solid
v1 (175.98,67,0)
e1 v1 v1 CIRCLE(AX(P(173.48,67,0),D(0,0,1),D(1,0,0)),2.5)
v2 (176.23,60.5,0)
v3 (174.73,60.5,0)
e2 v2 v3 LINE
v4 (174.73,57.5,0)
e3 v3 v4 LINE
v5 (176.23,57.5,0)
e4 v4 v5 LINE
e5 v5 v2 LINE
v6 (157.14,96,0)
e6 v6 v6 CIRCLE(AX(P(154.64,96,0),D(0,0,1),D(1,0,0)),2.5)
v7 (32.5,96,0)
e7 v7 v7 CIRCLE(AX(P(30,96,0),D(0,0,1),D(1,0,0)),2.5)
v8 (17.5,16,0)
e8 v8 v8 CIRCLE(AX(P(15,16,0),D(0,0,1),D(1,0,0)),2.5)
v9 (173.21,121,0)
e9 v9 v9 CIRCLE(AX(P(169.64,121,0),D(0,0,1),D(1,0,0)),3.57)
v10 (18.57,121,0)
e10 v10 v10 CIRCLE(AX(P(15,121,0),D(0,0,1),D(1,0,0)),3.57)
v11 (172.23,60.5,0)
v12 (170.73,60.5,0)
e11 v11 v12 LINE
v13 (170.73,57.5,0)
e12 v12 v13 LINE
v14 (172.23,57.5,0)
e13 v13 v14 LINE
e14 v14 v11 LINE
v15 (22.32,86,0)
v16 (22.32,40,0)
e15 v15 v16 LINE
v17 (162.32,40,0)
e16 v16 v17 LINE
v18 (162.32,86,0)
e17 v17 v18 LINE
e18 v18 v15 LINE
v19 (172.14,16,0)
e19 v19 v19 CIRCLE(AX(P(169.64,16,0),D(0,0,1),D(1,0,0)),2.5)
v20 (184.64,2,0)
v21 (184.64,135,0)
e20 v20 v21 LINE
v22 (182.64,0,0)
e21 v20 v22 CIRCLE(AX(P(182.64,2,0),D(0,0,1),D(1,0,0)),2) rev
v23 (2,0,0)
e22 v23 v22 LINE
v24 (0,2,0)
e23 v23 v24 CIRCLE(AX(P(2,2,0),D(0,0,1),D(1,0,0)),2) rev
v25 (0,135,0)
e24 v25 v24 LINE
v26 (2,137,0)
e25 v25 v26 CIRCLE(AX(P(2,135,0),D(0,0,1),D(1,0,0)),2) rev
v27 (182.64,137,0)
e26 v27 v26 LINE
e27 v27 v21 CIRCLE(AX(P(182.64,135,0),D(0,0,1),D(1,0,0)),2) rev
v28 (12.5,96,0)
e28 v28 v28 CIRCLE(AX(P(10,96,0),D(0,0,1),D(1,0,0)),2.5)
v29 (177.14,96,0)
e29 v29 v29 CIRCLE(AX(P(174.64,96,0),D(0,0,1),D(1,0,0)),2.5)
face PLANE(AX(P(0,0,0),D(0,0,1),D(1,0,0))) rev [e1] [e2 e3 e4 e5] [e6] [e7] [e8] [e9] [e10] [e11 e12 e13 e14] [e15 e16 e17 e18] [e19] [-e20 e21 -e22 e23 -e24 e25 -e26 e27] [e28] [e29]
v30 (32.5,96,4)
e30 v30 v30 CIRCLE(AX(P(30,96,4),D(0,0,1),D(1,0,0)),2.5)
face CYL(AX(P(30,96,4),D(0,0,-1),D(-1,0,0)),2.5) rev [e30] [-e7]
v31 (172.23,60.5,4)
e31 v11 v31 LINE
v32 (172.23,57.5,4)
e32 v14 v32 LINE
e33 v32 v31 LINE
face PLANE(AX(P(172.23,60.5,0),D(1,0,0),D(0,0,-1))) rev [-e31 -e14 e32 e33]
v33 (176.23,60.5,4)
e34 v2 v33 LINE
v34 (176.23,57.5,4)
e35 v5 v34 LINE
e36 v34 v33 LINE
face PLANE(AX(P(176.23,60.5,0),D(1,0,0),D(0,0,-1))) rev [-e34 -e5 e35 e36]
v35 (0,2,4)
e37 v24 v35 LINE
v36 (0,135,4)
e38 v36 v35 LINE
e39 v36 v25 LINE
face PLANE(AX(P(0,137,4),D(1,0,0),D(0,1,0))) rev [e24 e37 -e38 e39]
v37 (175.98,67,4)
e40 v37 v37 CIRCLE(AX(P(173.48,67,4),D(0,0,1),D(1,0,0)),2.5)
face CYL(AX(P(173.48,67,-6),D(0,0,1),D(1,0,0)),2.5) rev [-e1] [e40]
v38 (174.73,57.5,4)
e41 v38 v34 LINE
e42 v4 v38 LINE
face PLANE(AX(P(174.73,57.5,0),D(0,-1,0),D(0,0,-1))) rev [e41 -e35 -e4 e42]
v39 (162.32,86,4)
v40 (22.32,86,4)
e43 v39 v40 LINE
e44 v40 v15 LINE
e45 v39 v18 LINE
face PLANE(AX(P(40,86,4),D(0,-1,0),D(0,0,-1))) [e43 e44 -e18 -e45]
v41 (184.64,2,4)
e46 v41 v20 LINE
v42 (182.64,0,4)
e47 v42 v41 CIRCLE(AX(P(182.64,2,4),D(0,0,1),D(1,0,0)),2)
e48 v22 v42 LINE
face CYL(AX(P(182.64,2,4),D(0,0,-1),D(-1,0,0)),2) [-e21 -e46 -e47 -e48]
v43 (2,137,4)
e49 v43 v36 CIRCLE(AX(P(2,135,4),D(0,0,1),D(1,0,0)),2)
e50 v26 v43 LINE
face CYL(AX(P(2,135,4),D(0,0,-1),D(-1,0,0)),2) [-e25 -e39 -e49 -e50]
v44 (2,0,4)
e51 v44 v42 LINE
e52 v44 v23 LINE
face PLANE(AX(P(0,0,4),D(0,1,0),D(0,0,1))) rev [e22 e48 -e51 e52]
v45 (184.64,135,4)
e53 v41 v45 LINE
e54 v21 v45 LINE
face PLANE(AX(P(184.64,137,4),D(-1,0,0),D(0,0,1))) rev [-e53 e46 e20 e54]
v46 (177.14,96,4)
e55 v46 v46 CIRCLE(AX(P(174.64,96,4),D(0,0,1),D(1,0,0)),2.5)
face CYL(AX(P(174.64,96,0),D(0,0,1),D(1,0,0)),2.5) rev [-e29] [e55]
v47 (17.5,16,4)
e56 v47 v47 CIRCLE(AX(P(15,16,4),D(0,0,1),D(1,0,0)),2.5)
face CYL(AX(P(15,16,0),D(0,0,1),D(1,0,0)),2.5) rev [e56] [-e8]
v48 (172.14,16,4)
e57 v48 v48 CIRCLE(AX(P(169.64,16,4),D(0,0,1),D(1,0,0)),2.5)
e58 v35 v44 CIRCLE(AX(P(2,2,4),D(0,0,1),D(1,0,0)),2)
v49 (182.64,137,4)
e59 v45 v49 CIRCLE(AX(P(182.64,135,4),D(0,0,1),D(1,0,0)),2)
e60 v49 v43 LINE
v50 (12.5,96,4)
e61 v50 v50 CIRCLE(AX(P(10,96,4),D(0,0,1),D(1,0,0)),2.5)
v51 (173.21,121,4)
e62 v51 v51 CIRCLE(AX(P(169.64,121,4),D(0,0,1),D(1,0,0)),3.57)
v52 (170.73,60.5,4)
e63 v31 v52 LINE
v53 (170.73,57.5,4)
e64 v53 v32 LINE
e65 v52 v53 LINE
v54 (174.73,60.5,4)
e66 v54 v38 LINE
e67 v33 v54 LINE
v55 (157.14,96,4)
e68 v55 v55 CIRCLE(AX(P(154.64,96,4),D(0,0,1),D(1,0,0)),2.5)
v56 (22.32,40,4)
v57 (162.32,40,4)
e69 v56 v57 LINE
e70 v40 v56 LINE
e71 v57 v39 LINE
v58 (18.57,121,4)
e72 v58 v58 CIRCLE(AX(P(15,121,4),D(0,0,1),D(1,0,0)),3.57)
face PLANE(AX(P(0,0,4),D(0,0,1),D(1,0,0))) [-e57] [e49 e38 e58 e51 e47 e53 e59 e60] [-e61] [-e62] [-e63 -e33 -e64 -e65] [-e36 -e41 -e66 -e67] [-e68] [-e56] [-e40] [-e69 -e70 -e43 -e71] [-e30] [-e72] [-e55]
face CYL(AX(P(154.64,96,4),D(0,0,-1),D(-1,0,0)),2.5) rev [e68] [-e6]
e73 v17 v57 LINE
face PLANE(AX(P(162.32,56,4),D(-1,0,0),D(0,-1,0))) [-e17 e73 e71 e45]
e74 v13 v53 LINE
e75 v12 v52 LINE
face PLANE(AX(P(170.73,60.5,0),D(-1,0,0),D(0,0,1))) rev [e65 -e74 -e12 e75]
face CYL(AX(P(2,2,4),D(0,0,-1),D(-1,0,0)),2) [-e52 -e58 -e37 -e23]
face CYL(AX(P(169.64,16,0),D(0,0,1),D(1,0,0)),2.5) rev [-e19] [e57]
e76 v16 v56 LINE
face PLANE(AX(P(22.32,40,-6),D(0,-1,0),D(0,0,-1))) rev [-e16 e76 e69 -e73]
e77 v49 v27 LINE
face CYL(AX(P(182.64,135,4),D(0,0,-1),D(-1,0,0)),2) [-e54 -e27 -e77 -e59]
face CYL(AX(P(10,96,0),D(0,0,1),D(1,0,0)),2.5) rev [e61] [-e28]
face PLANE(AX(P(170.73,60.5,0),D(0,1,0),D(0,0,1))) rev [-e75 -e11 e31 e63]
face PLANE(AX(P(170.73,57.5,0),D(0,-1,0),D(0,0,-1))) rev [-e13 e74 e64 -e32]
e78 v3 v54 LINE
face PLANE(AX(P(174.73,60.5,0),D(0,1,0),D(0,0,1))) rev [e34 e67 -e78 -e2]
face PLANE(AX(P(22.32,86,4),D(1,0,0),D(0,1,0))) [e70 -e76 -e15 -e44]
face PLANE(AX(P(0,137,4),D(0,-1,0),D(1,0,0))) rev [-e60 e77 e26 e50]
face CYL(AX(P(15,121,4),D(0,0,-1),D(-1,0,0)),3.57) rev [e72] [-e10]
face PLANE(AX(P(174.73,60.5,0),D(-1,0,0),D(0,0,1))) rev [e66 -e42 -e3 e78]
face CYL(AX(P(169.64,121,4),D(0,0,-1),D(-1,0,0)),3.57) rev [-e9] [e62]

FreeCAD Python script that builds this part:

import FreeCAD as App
import Part
import Sketcher


def edges_at(feature, points):
    """Names of the edges that pass closest to the given points."""
    edges = feature.Shape.Edges
    near = lambda p: min(range(len(edges)), key=lambda i: edges[i].distToShape(Part.Vertex(*p))[0])
    return sorted({f"Edge{near(p) + 1}" for p in points})

doc = App.newDocument("Part")
params = doc.addObject("Spreadsheet::Sheet", "Params")
for row, (alias, value) in enumerate([
    ("sketch1_diameter", "5 mm"),
    ("sketch1_diameter2", "7.3 mm"),
    ("sketch1_diameter3", "7.14 mm"),
    ("sketch1_width", "140 mm"),
    ("sketch1_height", "137 mm"),
    ("pad1_length", "4 mm"),
    ("sketch2_height", "20 mm"),
    ("sketch2_width", "104.64 mm"),
    ("pad2_length", "4 mm"),
    ("sketch3_diameter", "7.3 mm"),
    ("sketch4_width", "140 mm"),
    ("sketch4_height", "16 mm"),
    ("pocket2_length", "10 mm"),
    ("fillet_radius", "2 mm"),
    ("sketch5_diameter", "5 mm"),
    ("sketch5_height", "15 mm"),
    ("sketch5_width", "184.64 mm"),
    ("sketch6_diameter", "5 mm"),
    ("sketch7_diameter", "5 mm"),
    ("pocket4_length", "10 mm"),
    ("sketch8_height", "3 mm"),
    ("sketch8_width", "1.5 mm"),
], start=1):
    params.set(f"A{row}", alias)
    params.set(f"B{row}", "=" + value)
    params.setAlias(f"B{row}", alias)

body = doc.addObject("PartDesign::Body", "Body")

# Sketch on XY plane
sketch1 = doc.addObject("Sketcher::SketchObject", "Sketch")
body.addObject(sketch1)
sketch1.AttachmentSupport = (doc.XY_Plane, [""])
sketch1.MapMode = "FlatFace"
sketch1.addGeometry([
    Part.LineSegment(App.Vector(0, 137, 0), App.Vector(0, 0, 0)),  # 0
    Part.LineSegment(App.Vector(0, 0, 0), App.Vector(184.6, 0, 0)),  # 1
    Part.LineSegment(App.Vector(184.6, 0, 0), App.Vector(184.6, 137, 0)),  # 2
    Part.LineSegment(App.Vector(184.6, 137, 0), App.Vector(0, 137, 0)),  # 3
    Part.Circle(App.Vector(15, 16, 0), App.Vector(0, 0, 1), 3.6),  # 4
    Part.Circle(App.Vector(169.6, 16, 0), App.Vector(0, 0, 1), 3.6),  # 5
    Part.Circle(App.Vector(30, 96, 0), App.Vector(0, 0, 1), 2.5),  # 6
    Part.Circle(App.Vector(15, 121, 0), App.Vector(0, 0, 1), 3.6),  # 7
    Part.LineSegment(App.Vector(40, 86, 0), App.Vector(40, 106, 0)),  # 8
    Part.LineSegment(App.Vector(40, 106, 0), App.Vector(144.6, 106, 0)),  # 9
    Part.LineSegment(App.Vector(144.6, 106, 0), App.Vector(144.6, 86, 0)),  # 10
    Part.LineSegment(App.Vector(144.6, 86, 0), App.Vector(162.3, 86, 0)),  # 11
    Part.LineSegment(App.Vector(162.3, 86, 0), App.Vector(162.3, 56, 0)),  # 12
    Part.LineSegment(App.Vector(162.3, 56, 0), App.Vector(22.3, 56, 0)),  # 13
    Part.LineSegment(App.Vector(22.3, 56, 0), App.Vector(22.3, 86, 0)),  # 14
    Part.LineSegment(App.Vector(22.3, 86, 0), App.Vector(40, 86, 0)),  # 15
    Part.Circle(App.Vector(154.6, 96, 0), App.Vector(0, 0, 1), 2.5),  # 16
    Part.Circle(App.Vector(169.6, 121, 0), App.Vector(0, 0, 1), 3.6),  # 17
], False)
sketch1.addConstraint([
    Sketcher.Constraint("Coincident", 0, 2, 1, 1),
    Sketcher.Constraint("Coincident", 1, 2, 2, 1),
    Sketcher.Constraint("Coincident", 2, 2, 3, 1),
    Sketcher.Constraint("Coincident", 3, 2, 0, 1),
    Sketcher.Constraint("Coincident", 8, 2, 9, 1),
    Sketcher.Constraint("Coincident", 9, 2, 10, 1),
    Sketcher.Constraint("Coincident", 10, 2, 11, 1),
    Sketcher.Constraint("Coincident", 11, 2, 12, 1),
    Sketcher.Constraint("Coincident", 12, 2, 13, 1),
    Sketcher.Constraint("Coincident", 13, 2, 14, 1),
    Sketcher.Constraint("Coincident", 14, 2, 15, 1),
    Sketcher.Constraint("Coincident", 15, 2, 8, 1),
    Sketcher.Constraint("Vertical", 0),
    Sketcher.Constraint("Horizontal", 1),
    Sketcher.Constraint("Vertical", 2),
    Sketcher.Constraint("Horizontal", 3),
    Sketcher.Constraint("Vertical", 8),
    Sketcher.Constraint("Horizontal", 9),
    Sketcher.Constraint("Vertical", 10),
    Sketcher.Constraint("Horizontal", 11),
    Sketcher.Constraint("Vertical", 12),
    Sketcher.Constraint("Horizontal", 13),
    Sketcher.Constraint("Vertical", 14),
    Sketcher.Constraint("Horizontal", 15),
    Sketcher.Constraint("Coincident", 0, 2, -1, 1),
    Sketcher.Constraint("Equal", 4, 5),
    Sketcher.Constraint("Equal", 6, 16),
    Sketcher.Constraint("Equal", 7, 17),
    Sketcher.Constraint("Horizontal", 4, 3, 5, 3),
    Sketcher.Constraint("Horizontal", 6, 3, 16, 3),
    Sketcher.Constraint("Horizontal", 7, 3, 17, 3),
    Sketcher.Constraint("Horizontal", 11, 2, 14, 2),
    Sketcher.Constraint("Vertical", 4, 3, 7, 3),
    Sketcher.Constraint("Vertical", 5, 3, 17, 3),
    Sketcher.Constraint("Equal", 11, 15),
    Sketcher.Constraint("Diameter", 6, 5.0),
    Sketcher.Constraint("Diameter", 4, 7.3),
    Sketcher.Constraint("Diameter", 7, 7.14),
    Sketcher.Constraint("DistanceX", 13, 2, 13, 1, 140.0),
    Sketcher.Constraint("DistanceY", 0, 2, 0, 1, 137.0),
    Sketcher.Constraint("DistanceY", 8, 1, 8, 2, 20.0),
    Sketcher.Constraint("DistanceY", 12, 2, 12, 1, 30.0),
    Sketcher.Constraint("DistanceX", -1, 1, 4, 3, 15.0),
    Sketcher.Constraint("DistanceY", -1, 1, 4, 3, 16.0),
    Sketcher.Constraint("DistanceX", -1, 1, 6, 3, 30.0),
    Sketcher.Constraint("DistanceY", -1, 1, 6, 3, 96.0),
    Sketcher.Constraint("DistanceY", -1, 1, 7, 3, 121.0),
    Sketcher.Constraint("DistanceX", -1, 1, 8, 2, 40.0),
    Sketcher.Constraint("DistanceY", -1, 1, 8, 2, 106.0),
    Sketcher.Constraint("DistanceX", 16, 3, 5, 3, 15.0),
    Sketcher.Constraint("DistanceX", 5, 3, 1, 2, 15.0),
    Sketcher.Constraint("DistanceX", 9, 2, 16, 3, 10.0),
    Sketcher.Constraint("DistanceX", 1, 1, 1, 2, 184.64),
])
sketch1.setExpression("Constraints[35]", "Params.sketch1_diameter")
sketch1.setExpression("Constraints[36]", "Params.sketch1_diameter2")
sketch1.setExpression("Constraints[37]", "Params.sketch1_diameter3")
sketch1.setExpression("Constraints[38]", "Params.sketch1_width")
sketch1.setExpression("Constraints[39]", "Params.sketch1_height")
pad1 = doc.addObject("PartDesign::Pad", "Pad")
body.addObject(pad1)
pad1.Profile = sketch1
pad1.setExpression("Length", "Params.pad1_length")

# Sketch on XY plane
sketch2 = doc.addObject("Sketcher::SketchObject", "Sketch001")
body.addObject(sketch2)
sketch2.AttachmentSupport = (doc.XY_Plane, [""])
sketch2.MapMode = "FlatFace"
sketch2.AttachmentOffset = App.Placement(App.Vector(0, 0, 4), App.Rotation())
sketch2.addGeometry([
    Part.LineSegment(App.Vector(40, 106, 0), App.Vector(40, 86, 0)),
    Part.LineSegment(App.Vector(40, 86, 0), App.Vector(145, 86, 0)),
    Part.LineSegment(App.Vector(145, 86, 0), App.Vector(145, 106, 0)),
    Part.LineSegment(App.Vector(145, 106, 0), App.Vector(40, 106, 0)),
], False)
sketch2.addConstraint([
    Sketcher.Constraint("Coincident", 0, 2, 1, 1),
    Sketcher.Constraint("Coincident", 1, 2, 2, 1),
    Sketcher.Constraint("Coincident", 2, 2, 3, 1),
    Sketcher.Constraint("Coincident", 3, 2, 0, 1),
    Sketcher.Constraint("Vertical", 0),
    Sketcher.Constraint("Horizontal", 1),
    Sketcher.Constraint("Vertical", 2),
    Sketcher.Constraint("Horizontal", 3),
    Sketcher.Constraint("DistanceY", 0, 2, 0, 1, 20.0),
    Sketcher.Constraint("DistanceX", -1, 1, 0, 2, 40.0),
    Sketcher.Constraint("DistanceY", -1, 1, 0, 2, 86.0),
    Sketcher.Constraint("DistanceX", 1, 1, 1, 2, 104.64),
])
sketch2.setExpression("Constraints[8]", "Params.sketch2_height")
sketch2.setExpression("Constraints[11]", "Params.sketch2_width")
pad2 = doc.addObject("PartDesign::Pad", "Pad001")
body.addObject(pad2)
pad2.Profile = sketch2
pad2.setExpression("Length", "Params.pad2_length")
pad2.Reversed = True

# Sketch on XY plane
sketch3 = doc.addObject("Sketcher::SketchObject", "Sketch002")
body.addObject(sketch3)
sketch3.AttachmentSupport = (doc.XY_Plane, [""])
sketch3.MapMode = "FlatFace"
sketch3.AttachmentOffset = App.Placement(App.Vector(0, 0, 4), App.Rotation())
sketch3.addGeometry([
    Part.Circle(App.Vector(67.3, 16, 0), App.Vector(0, 0, 1), 3.6),
    Part.Circle(App.Vector(117.3, 16, 0), App.Vector(0, 0, 1), 3.6),
], False)
sketch3.addConstraint([
    Sketcher.Constraint("Equal", 0, 1),
    Sketcher.Constraint("Horizontal", 0, 3, 1, 3),
    Sketcher.Constraint("Diameter", 0, 7.3),
    Sketcher.Constraint("DistanceY", -1, 1, 0, 3, 16.0),
    Sketcher.Constraint("DistanceX", 0, 3, 1, 3, 50.0),
    Sketcher.Constraint("DistanceX", -1, 1, 0, 3, 67.32),
])
sketch3.setExpression("Constraints[2]", "Params.sketch3_diameter")
pocket1 = doc.addObject("PartDesign::Pocket", "Pocket")
body.addObject(pocket1)
pocket1.Profile = sketch3
pocket1.Type = "ThroughAll"

# Sketch on XY plane
sketch4 = doc.addObject("Sketcher::SketchObject", "Sketch003")
body.addObject(sketch4)
sketch4.AttachmentSupport = (doc.XY_Plane, [""])
sketch4.MapMode = "FlatFace"
sketch4.AttachmentOffset = App.Placement(App.Vector(0, 0, 4), App.Rotation())
sketch4.addGeometry([
    Part.LineSegment(App.Vector(22, 56, 0), App.Vector(22, 40, 0)),
    Part.LineSegment(App.Vector(22, 40, 0), App.Vector(162, 40, 0)),
    Part.LineSegment(App.Vector(162, 40, 0), App.Vector(162, 56, 0)),
    Part.LineSegment(App.Vector(162, 56, 0), App.Vector(22, 56, 0)),
], False)
sketch4.addConstraint([
    Sketcher.Constraint("Coincident", 0, 2, 1, 1),
    Sketcher.Constraint("Coincident", 1, 2, 2, 1),
    Sketcher.Constraint("Coincident", 2, 2, 3, 1),
    Sketcher.Constraint("Coincident", 3, 2, 0, 1),
    Sketcher.Constraint("Vertical", 0),
    Sketcher.Constraint("Horizontal", 1),
    Sketcher.Constraint("Vertical", 2),
    Sketcher.Constraint("Horizontal", 3),
    Sketcher.Constraint("DistanceX", 1, 1, 1, 2, 140.0),
    Sketcher.Constraint("DistanceY", 0, 2, 0, 1, 16.0),
    Sketcher.Constraint("DistanceY", -1, 1, 0, 2, 40.0),
    Sketcher.Constraint("DistanceX", -1, 1, 0, 2, 22.32),
])
sketch4.setExpression("Constraints[8]", "Params.sketch4_width")
sketch4.setExpression("Constraints[9]", "Params.sketch4_height")
pocket2 = doc.addObject("PartDesign::Pocket", "Pocket001")
body.addObject(pocket2)
pocket2.Profile = sketch4
pocket2.setExpression("Length", "Params.pocket2_length")
doc.recompute()

fillet = doc.addObject("PartDesign::Fillet", "Fillet")
body.addObject(fillet)
fillet.Base = (pocket2, edges_at(pocket2, [
    (0, 137, 2),
    (184.64, 137, 2),
    (184.64, 0, 2),
    (0, 0, 2),
]))
fillet.setExpression("Radius", "Params.fillet_radius")

# Sketch on XY plane
sketch5 = doc.addObject("Sketcher::SketchObject", "Sketch004")
body.addObject(sketch5)
sketch5.AttachmentSupport = (doc.XY_Plane, [""])
sketch5.MapMode = "FlatFace"
sketch5.AttachmentOffset = App.Placement(App.Vector(0, 0, 4), App.Rotation())
sketch5.addGeometry([
    Part.LineSegment(App.Vector(0, 23.5, 0), App.Vector(0, 8.5, 0)),  # 0
    Part.LineSegment(App.Vector(0, 8.5, 0), App.Vector(184.6, 8.5, 0)),  # 1
    Part.LineSegment(App.Vector(184.6, 8.5, 0), App.Vector(184.6, 23.5, 0)),  # 2
    Part.LineSegment(App.Vector(184.6, 23.5, 0), App.Vector(0, 23.5, 0)),  # 3
    Part.Circle(App.Vector(15, 16, 0), App.Vector(0, 0, 1), 2.5),  # 4
    Part.Circle(App.Vector(169.6, 16, 0), App.Vector(0, 0, 1), 2.5),  # 5
], False)
sketch5.addConstraint([
    Sketcher.Constraint("Coincident", 0, 2, 1, 1),
    Sketcher.Constraint("Coincident", 1, 2, 2, 1),
    Sketcher.Constraint("Coincident", 2, 2, 3, 1),
    Sketcher.Constraint("Coincident", 3, 2, 0, 1),
    Sketcher.Constraint("Vertical", 0),
    Sketcher.Constraint("Horizontal", 1),
    Sketcher.Constraint("Vertical", 2),
    Sketcher.Constraint("Horizontal", 3),
    Sketcher.Constraint("Equal", 4, 5),
    Sketcher.Constraint("PointOnObject", 0, 2, -2),
    Sketcher.Constraint("Horizontal", 4, 3, 5, 3),
    Sketcher.Constraint("Diameter", 4, 5.0),
    Sketcher.Constraint("DistanceY", 0, 2, 0, 1, 15.0),
    Sketcher.Constraint("DistanceX", -1, 1, 4, 3, 15.0),
    Sketcher.Constraint("DistanceY", -1, 1, 4, 3, 16.0),
    Sketcher.Constraint("DistanceX", 5, 3, 1, 2, 15.0),
    Sketcher.Constraint("DistanceX", 1, 1, 1, 2, 184.64),
    Sketcher.Constraint("DistanceY", -1, 1, 0, 2, 8.5),
])
sketch5.setExpression("Constraints[11]", "Params.sketch5_diameter")
sketch5.setExpression("Constraints[12]", "Params.sketch5_height")
sketch5.setExpression("Constraints[16]", "Params.sketch5_width")
pad3 = doc.addObject("PartDesign::Pad", "Pad002")
body.addObject(pad3)
pad3.Profile = sketch5
pad3.Type = "UpToLast"
pad3.Reversed = True

# Sketch on XY plane
sketch6 = doc.addObject("Sketcher::SketchObject", "Sketch005")
body.addObject(sketch6)
sketch6.AttachmentSupport = (doc.XY_Plane, [""])
sketch6.MapMode = "FlatFace"
sketch6.AttachmentOffset = App.Placement(App.Vector(0, 0, 4), App.Rotation())
sketch6.addGeometry([
    Part.Circle(App.Vector(10, 96, 0), App.Vector(0, 0, 1), 2.5),
    Part.Circle(App.Vector(174.6, 96, 0), App.Vector(0, 0, 1), 2.5),
], False)
sketch6.addConstraint([
    Sketcher.Constraint("Equal", 0, 1),
    Sketcher.Constraint("Horizontal", 0, 3, 1, 3),
    Sketcher.Constraint("Diameter", 0, 5.0),
    Sketcher.Constraint("DistanceX", -1, 1, 0, 3, 10.0),
    Sketcher.Constraint("DistanceY", -1, 1, 0, 3, 96.0),
    Sketcher.Constraint("DistanceX", -1, 1, 1, 3, 174.64),
])
sketch6.setExpression("Constraints[2]", "Params.sketch6_diameter")
pocket3 = doc.addObject("PartDesign::Pocket", "Pocket002")
body.addObject(pocket3)
pocket3.Profile = sketch6
pocket3.Type = "ThroughAll"

# Sketch on XY plane
sketch7 = doc.addObject("Sketcher::SketchObject", "Sketch006")
body.addObject(sketch7)
sketch7.AttachmentSupport = (doc.XY_Plane, [""])
sketch7.MapMode = "FlatFace"
sketch7.AttachmentOffset = App.Placement(App.Vector(0, 0, 4), App.Rotation())
sketch7.addGeometry(Part.Circle(App.Vector(173.5, 67, 0), App.Vector(0, 0, 1), 2.5), False)
sketch7.addConstraint([
    Sketcher.Constraint("Diameter", 0, 5.0),
    Sketcher.Constraint("DistanceY", -1, 1, 0, 3, 67.0),
    Sketcher.Constraint("DistanceX", -1, 1, 0, 3, 173.48),
])
sketch7.setExpression("Constraints[0]", "Params.sketch7_diameter")
pocket4 = doc.addObject("PartDesign::Pocket", "Pocket003")
body.addObject(pocket4)
pocket4.Profile = sketch7
pocket4.setExpression("Length", "Params.pocket4_length")

# Sketch on XY plane
sketch8 = doc.addObject("Sketcher::SketchObject", "Sketch007")
body.addObject(sketch8)
sketch8.AttachmentSupport = (doc.XY_Plane, [""])
sketch8.MapMode = "FlatFace"
sketch8.AttachmentOffset = App.Placement(App.Vector(0, 0, 4), App.Rotation())
sketch8.addGeometry([
    Part.LineSegment(App.Vector(170.7, 60.5, 0), App.Vector(170.7, 57.5, 0)),  # 0
    Part.LineSegment(App.Vector(170.7, 57.5, 0), App.Vector(172.2, 57.5, 0)),  # 1
    Part.LineSegment(App.Vector(172.2, 57.5, 0), App.Vector(172.2, 60.5, 0)),  # 2
    Part.LineSegment(App.Vector(172.2, 60.5, 0), App.Vector(170.7, 60.5, 0)),  # 3
    Part.LineSegment(App.Vector(174.7, 60.5, 0), App.Vector(174.7, 57.5, 0)),  # 4
    Part.LineSegment(App.Vector(174.7, 57.5, 0), App.Vector(176.2, 57.5, 0)),  # 5
    Part.LineSegment(App.Vector(176.2, 57.5, 0), App.Vector(176.2, 60.5, 0)),  # 6
    Part.LineSegment(App.Vector(176.2, 60.5, 0), App.Vector(174.7, 60.5, 0)),  # 7
], False)
sketch8.addConstraint([
    Sketcher.Constraint("Coincident", 0, 2, 1, 1),
    Sketcher.Constraint("Coincident", 1, 2, 2, 1),
    Sketcher.Constraint("Coincident", 2, 2, 3, 1),
    Sketcher.Constraint("Coincident", 3, 2, 0, 1),
    Sketcher.Constraint("Coincident", 4, 2, 5, 1),
    Sketcher.Constraint("Coincident", 5, 2, 6, 1),
    Sketcher.Constraint("Coincident", 6, 2, 7, 1),
    Sketcher.Constraint("Coincident", 7, 2, 4, 1),
    Sketcher.Constraint("Vertical", 0),
    Sketcher.Constraint("Horizontal", 1),
    Sketcher.Constraint("Vertical", 2),
    Sketcher.Constraint("Horizontal", 3),
    Sketcher.Constraint("Vertical", 4),
    Sketcher.Constraint("Horizontal", 5),
    Sketcher.Constraint("Vertical", 6),
    Sketcher.Constraint("Horizontal", 7),
    Sketcher.Constraint("Horizontal", 1, 2, 4, 2),
    Sketcher.Constraint("Horizontal", 3, 2, 6, 2),
    Sketcher.Constraint("Equal", 3, 5),
    Sketcher.Constraint("DistanceY", 0, 2, 0, 1, 3.0),
    Sketcher.Constraint("DistanceX", 1, 1, 1, 2, 1.5),
    Sketcher.Constraint("DistanceX", 0, 2, 4, 2, 4.0),
    Sketcher.Constraint("DistanceY", -1, 1, 0, 2, 57.5),
    Sketcher.Constraint("DistanceX", -1, 1, 0, 2, 170.73),
])
sketch8.setExpression("Constraints[19]", "Params.sketch8_height")
sketch8.setExpression("Constraints[20]", "Params.sketch8_width")
pocket5 = doc.addObject("PartDesign::Pocket", "Pocket004")
body.addObject(pocket5)
pocket5.Profile = sketch8
pocket5.Type = "ThroughAll"

doc.recompute()
